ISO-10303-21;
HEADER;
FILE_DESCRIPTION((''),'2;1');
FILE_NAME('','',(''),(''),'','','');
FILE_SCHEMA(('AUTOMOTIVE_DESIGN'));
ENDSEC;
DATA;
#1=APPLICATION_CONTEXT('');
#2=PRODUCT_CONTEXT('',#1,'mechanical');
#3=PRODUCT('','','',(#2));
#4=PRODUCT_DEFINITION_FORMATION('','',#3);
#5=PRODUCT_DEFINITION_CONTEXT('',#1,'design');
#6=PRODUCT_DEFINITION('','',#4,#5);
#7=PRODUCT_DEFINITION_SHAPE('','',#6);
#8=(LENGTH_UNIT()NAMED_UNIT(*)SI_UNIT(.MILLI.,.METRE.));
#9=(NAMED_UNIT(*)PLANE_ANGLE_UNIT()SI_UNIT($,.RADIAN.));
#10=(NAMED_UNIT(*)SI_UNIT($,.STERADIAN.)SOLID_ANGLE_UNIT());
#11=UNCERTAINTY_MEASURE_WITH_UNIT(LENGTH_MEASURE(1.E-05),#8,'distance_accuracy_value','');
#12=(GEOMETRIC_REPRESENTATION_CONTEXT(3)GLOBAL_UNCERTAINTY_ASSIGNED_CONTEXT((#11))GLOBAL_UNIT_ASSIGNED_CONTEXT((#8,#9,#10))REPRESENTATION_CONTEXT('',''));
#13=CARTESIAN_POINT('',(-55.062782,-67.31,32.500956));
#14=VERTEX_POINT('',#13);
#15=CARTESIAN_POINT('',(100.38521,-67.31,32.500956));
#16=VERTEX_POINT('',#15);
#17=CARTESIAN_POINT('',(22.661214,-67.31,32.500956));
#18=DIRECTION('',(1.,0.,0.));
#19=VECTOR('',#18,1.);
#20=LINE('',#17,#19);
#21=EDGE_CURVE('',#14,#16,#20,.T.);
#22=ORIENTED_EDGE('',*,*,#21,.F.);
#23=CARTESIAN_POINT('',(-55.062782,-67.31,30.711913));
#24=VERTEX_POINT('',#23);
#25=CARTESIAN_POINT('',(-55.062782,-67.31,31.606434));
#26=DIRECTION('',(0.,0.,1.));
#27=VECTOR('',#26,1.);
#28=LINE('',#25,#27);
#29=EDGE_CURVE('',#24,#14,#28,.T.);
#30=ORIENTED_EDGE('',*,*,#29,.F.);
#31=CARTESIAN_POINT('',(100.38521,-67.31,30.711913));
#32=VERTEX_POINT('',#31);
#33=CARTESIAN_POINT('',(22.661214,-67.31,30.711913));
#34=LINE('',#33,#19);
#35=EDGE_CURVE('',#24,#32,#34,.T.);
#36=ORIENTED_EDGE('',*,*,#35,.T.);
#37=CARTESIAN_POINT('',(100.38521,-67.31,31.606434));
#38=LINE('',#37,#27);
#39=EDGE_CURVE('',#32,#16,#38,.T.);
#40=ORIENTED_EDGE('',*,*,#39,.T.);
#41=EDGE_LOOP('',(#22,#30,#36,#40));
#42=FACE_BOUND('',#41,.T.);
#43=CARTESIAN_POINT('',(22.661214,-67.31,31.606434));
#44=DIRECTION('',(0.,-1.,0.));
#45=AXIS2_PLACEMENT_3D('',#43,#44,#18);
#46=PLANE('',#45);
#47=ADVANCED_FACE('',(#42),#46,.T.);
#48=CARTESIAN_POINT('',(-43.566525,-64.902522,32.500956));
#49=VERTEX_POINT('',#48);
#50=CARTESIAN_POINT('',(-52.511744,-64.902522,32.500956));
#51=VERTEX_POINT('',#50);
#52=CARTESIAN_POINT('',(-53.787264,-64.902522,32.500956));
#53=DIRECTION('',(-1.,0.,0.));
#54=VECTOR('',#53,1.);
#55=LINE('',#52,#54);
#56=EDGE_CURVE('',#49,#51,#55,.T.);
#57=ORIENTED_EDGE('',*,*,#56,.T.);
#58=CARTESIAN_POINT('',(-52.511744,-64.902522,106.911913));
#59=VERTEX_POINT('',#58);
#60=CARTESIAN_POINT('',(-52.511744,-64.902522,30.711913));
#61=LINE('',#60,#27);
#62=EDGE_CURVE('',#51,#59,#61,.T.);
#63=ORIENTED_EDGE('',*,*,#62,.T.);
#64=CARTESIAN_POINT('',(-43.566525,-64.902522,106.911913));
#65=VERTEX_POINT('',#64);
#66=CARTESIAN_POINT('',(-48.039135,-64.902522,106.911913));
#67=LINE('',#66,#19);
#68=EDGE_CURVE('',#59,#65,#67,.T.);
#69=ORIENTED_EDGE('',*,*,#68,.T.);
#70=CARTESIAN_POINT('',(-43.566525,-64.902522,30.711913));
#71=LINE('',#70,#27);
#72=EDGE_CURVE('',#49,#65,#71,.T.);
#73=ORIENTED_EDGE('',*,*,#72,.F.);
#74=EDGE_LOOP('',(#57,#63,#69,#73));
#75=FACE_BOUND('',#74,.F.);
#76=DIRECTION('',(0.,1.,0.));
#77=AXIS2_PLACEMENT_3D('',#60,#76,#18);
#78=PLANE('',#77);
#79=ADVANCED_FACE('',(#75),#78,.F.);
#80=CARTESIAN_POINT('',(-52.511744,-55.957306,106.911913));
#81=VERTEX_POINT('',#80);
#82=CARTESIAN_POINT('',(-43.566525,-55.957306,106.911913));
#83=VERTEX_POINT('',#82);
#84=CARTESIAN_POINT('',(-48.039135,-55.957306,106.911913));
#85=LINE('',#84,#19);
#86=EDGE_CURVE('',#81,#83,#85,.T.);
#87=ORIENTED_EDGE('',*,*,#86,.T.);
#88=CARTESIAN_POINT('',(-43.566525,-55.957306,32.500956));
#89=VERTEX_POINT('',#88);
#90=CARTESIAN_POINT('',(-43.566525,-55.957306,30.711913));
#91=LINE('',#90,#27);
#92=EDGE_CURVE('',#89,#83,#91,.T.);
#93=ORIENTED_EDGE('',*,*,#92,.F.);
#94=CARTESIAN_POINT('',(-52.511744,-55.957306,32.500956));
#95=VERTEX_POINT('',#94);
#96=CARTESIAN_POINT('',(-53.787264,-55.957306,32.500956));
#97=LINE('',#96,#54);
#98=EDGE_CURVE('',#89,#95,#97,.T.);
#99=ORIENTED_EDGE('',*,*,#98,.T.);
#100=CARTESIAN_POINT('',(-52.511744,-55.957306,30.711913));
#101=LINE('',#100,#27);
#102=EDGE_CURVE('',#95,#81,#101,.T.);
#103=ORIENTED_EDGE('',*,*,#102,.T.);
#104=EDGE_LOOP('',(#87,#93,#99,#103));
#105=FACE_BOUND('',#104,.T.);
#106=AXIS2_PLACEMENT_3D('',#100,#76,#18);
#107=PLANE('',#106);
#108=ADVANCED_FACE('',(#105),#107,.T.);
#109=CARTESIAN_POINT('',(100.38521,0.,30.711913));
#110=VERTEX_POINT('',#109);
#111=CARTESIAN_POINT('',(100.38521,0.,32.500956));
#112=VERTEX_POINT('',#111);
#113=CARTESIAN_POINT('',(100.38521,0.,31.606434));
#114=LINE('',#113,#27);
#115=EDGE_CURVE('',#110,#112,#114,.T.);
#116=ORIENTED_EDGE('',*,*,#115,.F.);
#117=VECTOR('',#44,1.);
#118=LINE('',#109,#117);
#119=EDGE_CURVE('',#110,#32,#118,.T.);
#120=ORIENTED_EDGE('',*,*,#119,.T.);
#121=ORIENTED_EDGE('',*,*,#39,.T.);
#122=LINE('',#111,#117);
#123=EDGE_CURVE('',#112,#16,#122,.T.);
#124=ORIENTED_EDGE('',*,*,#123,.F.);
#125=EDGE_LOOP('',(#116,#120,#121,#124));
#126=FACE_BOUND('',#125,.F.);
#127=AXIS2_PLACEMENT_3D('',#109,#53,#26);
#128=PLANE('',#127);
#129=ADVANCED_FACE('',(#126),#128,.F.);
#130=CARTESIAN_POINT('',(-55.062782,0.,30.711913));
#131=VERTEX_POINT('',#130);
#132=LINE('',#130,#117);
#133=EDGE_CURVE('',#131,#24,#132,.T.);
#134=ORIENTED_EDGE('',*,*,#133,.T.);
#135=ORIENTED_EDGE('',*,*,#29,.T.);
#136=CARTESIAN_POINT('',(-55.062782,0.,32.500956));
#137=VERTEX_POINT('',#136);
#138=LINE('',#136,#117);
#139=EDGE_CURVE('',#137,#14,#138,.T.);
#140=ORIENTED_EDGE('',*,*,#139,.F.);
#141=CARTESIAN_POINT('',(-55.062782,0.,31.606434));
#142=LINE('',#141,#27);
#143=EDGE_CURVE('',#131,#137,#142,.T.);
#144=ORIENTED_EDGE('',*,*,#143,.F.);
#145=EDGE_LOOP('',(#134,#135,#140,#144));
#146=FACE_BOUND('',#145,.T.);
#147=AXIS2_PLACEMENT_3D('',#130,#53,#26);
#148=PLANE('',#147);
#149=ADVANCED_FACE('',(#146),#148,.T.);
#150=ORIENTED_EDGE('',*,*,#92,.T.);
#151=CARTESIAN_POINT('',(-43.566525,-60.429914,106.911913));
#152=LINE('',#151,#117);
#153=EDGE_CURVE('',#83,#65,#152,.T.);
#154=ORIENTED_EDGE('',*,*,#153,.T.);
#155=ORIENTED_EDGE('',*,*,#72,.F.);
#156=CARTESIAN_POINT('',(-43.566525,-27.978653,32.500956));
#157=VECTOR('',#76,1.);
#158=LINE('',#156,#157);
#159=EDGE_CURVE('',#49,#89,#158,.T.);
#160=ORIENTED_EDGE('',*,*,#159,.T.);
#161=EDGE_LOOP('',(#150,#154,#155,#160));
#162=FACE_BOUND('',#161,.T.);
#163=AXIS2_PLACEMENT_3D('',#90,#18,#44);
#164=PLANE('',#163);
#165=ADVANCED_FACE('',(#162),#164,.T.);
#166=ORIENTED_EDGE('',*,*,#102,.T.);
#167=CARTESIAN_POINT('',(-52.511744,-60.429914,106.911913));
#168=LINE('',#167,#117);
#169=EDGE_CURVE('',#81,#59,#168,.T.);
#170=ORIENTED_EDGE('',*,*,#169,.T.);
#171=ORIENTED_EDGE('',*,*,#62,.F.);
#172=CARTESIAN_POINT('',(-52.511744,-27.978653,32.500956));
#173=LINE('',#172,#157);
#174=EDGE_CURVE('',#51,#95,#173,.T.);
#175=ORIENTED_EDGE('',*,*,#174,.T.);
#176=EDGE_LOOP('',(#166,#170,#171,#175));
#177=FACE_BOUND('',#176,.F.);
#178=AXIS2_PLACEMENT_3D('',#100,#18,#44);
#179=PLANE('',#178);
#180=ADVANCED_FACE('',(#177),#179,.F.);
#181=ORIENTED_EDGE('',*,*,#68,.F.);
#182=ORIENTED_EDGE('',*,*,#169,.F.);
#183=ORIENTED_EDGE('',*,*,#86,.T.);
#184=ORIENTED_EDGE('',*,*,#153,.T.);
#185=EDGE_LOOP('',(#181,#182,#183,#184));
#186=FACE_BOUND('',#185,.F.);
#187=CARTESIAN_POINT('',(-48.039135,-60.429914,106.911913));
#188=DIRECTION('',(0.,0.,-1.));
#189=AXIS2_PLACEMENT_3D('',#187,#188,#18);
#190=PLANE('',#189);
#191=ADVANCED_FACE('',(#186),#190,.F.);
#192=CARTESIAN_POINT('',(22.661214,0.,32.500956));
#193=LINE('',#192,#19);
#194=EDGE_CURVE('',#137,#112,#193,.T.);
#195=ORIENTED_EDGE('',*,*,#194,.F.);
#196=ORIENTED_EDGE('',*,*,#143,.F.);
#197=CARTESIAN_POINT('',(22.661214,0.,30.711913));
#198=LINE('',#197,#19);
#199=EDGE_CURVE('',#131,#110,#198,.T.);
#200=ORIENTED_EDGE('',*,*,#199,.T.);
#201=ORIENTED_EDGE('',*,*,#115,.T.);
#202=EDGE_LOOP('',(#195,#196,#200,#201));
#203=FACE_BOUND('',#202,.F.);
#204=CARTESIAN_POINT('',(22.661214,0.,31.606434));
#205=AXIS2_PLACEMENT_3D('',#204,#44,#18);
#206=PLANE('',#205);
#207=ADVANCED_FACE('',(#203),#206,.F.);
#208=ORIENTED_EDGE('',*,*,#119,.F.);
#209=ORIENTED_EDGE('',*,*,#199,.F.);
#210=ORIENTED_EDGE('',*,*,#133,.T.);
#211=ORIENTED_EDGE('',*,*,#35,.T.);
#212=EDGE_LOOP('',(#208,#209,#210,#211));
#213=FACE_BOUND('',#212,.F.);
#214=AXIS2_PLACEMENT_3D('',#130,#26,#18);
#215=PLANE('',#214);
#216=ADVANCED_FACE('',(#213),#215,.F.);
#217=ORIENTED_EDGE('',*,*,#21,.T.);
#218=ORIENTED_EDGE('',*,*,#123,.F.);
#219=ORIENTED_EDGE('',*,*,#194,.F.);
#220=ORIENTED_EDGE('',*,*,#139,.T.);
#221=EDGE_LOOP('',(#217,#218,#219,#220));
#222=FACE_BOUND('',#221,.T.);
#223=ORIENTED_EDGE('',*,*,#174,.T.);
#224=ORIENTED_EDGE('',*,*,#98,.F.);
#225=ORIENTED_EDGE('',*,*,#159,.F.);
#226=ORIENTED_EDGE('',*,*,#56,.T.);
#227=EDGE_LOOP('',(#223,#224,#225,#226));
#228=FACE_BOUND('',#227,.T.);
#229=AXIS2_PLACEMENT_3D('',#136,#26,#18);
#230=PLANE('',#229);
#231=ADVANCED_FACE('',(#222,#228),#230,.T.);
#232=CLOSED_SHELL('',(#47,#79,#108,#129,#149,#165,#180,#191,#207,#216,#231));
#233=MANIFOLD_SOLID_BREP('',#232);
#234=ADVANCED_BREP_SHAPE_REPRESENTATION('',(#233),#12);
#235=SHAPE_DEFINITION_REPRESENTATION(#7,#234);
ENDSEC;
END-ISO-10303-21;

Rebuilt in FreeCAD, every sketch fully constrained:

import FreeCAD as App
import Part
import Sketcher
from FreeCAD import Vector

doc = App.newDocument("Part")
params = doc.addObject("Spreadsheet::Sheet", "Params")
for row, (alias, value) in enumerate([
    ("pad1_length", "2.65 in"),
    ("pad2_length", "3 in"),
], start=1):
    params.set(f"A{row}", alias)
    params.set(f"B{row}", "=" + value)
    params.setAlias(f"B{row}", alias)

body = doc.addObject("PartDesign::Body", "Body")

sketch1 = body.newObject("Sketcher::SketchObject", "Sketch")
sketch1.AttachmentSupport = (doc.getObject("XZ_Plane"), [""])
sketch1.MapMode = "FlatFace"
sketch1.addGeometry([
    Part.LineSegment(Vector(-55.1, 32.5, 0), Vector(-55.1, 30.7, 0)),
    Part.LineSegment(Vector(-55.1, 30.7, 0), Vector(100.4, 30.7, 0)),
    Part.LineSegment(Vector(100.4, 30.7, 0), Vector(100.4, 32.5, 0)),
    Part.LineSegment(Vector(100.4, 32.5, 0), Vector(-55.1, 32.5, 0)),
], False)
sketch1.addConstraint([
    Sketcher.Constraint("Coincident", 0, 2, 1, 1),
    Sketcher.Constraint("Coincident", 1, 2, 2, 1),
    Sketcher.Constraint("Coincident", 2, 2, 3, 1),
    Sketcher.Constraint("Coincident", 3, 2, 0, 1),
    Sketcher.Constraint("Vertical", 0),
    Sketcher.Constraint("Horizontal", 1),
    Sketcher.Constraint("Vertical", 2),
    Sketcher.Constraint("Horizontal", 3),
    Sketcher.Constraint("DistanceX", 1, 1, 1, 2, 155.447993),
    Sketcher.Constraint("DistanceY", 0, 2, 0, 1, 1.789043),
    Sketcher.Constraint("DistanceX", -1, 1, 1, 2, 100.38521),
    Sketcher.Constraint("DistanceY", -1, 1, 0, 2, 30.711913),
])
pad1 = body.newObject("PartDesign::Pad", "Pad")
pad1.Profile = sketch1
pad1.setExpression("Length", "Params.pad1_length")

sketch2 = body.newObject("Sketcher::SketchObject", "Sketch001")
sketch2.AttachmentSupport = (doc.getObject("XY_Plane"), [""])
sketch2.MapMode = "FlatFace"
sketch2.AttachmentOffset = App.Placement(Vector(0, 0, 30.711913), App.Rotation())
sketch2.addGeometry([
    Part.LineSegment(Vector(-53, -65, 0), Vector(-53, -56, 0)),
    Part.LineSegment(Vector(-53, -56, 0), Vector(-44, -56, 0)),
    Part.LineSegment(Vector(-44, -56, 0), Vector(-44, -65, 0)),
    Part.LineSegment(Vector(-44, -65, 0), Vector(-53, -65, 0)),
], False)
sketch2.addConstraint([
    Sketcher.Constraint("Coincident", 0, 2, 1, 1),
    Sketcher.Constraint("Coincident", 1, 2, 2, 1),
    Sketcher.Constraint("Coincident", 2, 2, 3, 1),
    Sketcher.Constraint("Coincident", 3, 2, 0, 1),
    Sketcher.Constraint("Vertical", 0),
    Sketcher.Constraint("Horizontal", 1),
    Sketcher.Constraint("Vertical", 2),
    Sketcher.Constraint("Horizontal", 3),
    Sketcher.Constraint("DistanceX", 1, 1, 1, 2, 8.945219),
    Sketcher.Constraint("DistanceY", 0, 1, 0, 2, 8.945216),
    Sketcher.Constraint("DistanceX", 0, 2, -1, 1, 52.511744),
    Sketcher.Constraint("DistanceY", 0, 2, -1, 1, 55.957306),
])
pad2 = body.newObject("PartDesign::Pad", "Pad001")
pad2.Profile = sketch2
pad2.setExpression("Length", "Params.pad2_length")

doc.recompute()
